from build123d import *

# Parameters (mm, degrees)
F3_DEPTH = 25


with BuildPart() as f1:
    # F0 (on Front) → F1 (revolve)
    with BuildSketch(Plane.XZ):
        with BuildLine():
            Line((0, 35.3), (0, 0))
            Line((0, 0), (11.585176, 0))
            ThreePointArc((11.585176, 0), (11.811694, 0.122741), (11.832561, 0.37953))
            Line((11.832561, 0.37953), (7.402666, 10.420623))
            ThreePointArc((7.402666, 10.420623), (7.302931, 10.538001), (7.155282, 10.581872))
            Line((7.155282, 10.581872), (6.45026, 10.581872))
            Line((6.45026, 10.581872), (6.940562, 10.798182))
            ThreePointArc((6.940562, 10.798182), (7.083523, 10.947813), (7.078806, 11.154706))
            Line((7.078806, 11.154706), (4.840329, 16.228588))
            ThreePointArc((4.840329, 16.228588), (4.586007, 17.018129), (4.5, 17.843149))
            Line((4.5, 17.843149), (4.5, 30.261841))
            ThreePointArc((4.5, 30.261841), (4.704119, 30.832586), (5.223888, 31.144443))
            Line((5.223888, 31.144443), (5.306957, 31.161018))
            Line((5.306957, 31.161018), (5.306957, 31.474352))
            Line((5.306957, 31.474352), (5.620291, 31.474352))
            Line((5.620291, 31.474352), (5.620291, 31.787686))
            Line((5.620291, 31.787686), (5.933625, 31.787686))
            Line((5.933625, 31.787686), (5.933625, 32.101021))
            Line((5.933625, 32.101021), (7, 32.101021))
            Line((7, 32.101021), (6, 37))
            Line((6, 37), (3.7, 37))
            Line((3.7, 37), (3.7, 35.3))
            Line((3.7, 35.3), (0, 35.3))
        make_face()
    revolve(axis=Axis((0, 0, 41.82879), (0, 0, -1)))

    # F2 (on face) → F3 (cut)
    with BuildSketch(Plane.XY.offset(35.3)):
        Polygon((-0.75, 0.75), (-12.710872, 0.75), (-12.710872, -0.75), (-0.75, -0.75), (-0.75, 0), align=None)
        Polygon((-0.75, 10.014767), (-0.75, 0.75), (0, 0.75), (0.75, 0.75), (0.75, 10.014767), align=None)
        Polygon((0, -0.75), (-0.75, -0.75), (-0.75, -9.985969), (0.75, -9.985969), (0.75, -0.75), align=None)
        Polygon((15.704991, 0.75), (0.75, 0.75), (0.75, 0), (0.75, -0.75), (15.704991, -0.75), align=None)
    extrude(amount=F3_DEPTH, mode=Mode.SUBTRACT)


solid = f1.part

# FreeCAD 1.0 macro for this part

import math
import FreeCAD as App
import Part
import Sketcher

V = App.Vector
Q = App.Units.Quantity


def add_polygon(sketch, points):
    """Adds a closed chain of lines whose ends are joined by coincident constraints."""
    first, n = sketch.GeometryCount, len(points)
    for a, b in zip(points, points[1:] + points[:1]):
        sketch.addGeometry(Part.LineSegment(App.Vector(*a, 0), App.Vector(*b, 0)), False)
    for i in range(n):
        sketch.addConstraint(Sketcher.Constraint("Coincident", first + i, 2, first + (i + 1) % n, 1))

doc = App.newDocument("Part")
body = doc.addObject("PartDesign::Body", "Body")

sketch1 = doc.addObject("Sketcher::SketchObject", "Sketch")
body.addObject(sketch1)
sketch1.AttachmentSupport = (doc.XZ_Plane, [""])
sketch1.MapMode = "FlatFace"
sketch1.addGeometry([
    Part.LineSegment(V(0, 35.3, 0), V(0, 0, 0)),
    Part.LineSegment(V(0, 0, 0), V(11.585176, 0, 0)),
    Part.ArcOfCircle(Part.Circle(V(11.585175, 0.270391, 0), V(0, 0, 1), 0.270391), math.radians(-89.999883), math.radians(23.805709)),
    Part.LineSegment(V(11.832561, 0.37953, 0), V(7.402666, 10.420623, 0)),
    Part.ArcOfCircle(Part.Circle(V(7.155284, 10.311486, 0), V(0, 0, 1), 0.270386), math.radians(23.805554), math.radians(90.000492)),
    Part.LineSegment(V(7.155282, 10.581872, 0), V(6.45026, 10.581872, 0)),
    Part.LineSegment(V(6.45026, 10.581872, 0), V(6.940562, 10.798182, 0)),
    Part.ArcOfCircle(Part.Circle(V(6.831423, 11.045566, 0), V(0, 0, 1), 0.270389), math.radians(-66.194227), math.radians(23.806114)),
    Part.LineSegment(V(7.078806, 11.154706, 0), V(4.840329, 16.228588, 0)),
    Part.ArcOfCircle(Part.Circle(V(8.500002, 17.84315, 0), V(0, 0, 1), 4.000002), math.radians(-179.99999), math.radians(-156.194055)),
    Part.LineSegment(V(4.5, 17.843149, 0), V(4.5, 30.261841, 0)),
    Part.ArcOfCircle(Part.Circle(V(5.400002, 30.261841, 0), V(0, 0, 1), 0.900002), math.radians(101.284539), math.radians(179.999974)),
    Part.LineSegment(V(5.223888, 31.144443, 0), V(5.306957, 31.161018, 0)),
    Part.LineSegment(V(5.306957, 31.161018, 0), V(5.306957, 31.474352, 0)),
    Part.LineSegment(V(5.306957, 31.474352, 0), V(5.620291, 31.474352, 0)),
    Part.LineSegment(V(5.620291, 31.474352, 0), V(5.620291, 31.787686, 0)),
    Part.LineSegment(V(5.620291, 31.787686, 0), V(5.933625, 31.787686, 0)),
    Part.LineSegment(V(5.933625, 31.787686, 0), V(5.933625, 32.101021, 0)),
    Part.LineSegment(V(5.933625, 32.101021, 0), V(7, 32.101021, 0)),
    Part.LineSegment(V(7, 32.101021, 0), V(6, 37, 0)),
    Part.LineSegment(V(6, 37, 0), V(3.7, 37, 0)),
    Part.LineSegment(V(3.7, 37, 0), V(3.7, 35.3, 0)),
    Part.LineSegment(V(3.7, 35.3, 0), V(0, 35.3, 0)),
], False)
sketch1.addConstraint([
    Sketcher.Constraint("Coincident", 0, 2, 1, 1),
    Sketcher.Constraint("Coincident", 1, 2, 2, 1),
    Sketcher.Constraint("Coincident", 2, 2, 3, 1),
    Sketcher.Constraint("Coincident", 3, 2, 4, 1),
    Sketcher.Constraint("Coincident", 4, 2, 5, 1),
    Sketcher.Constraint("Coincident", 5, 2, 6, 1),
    Sketcher.Constraint("Coincident", 6, 2, 7, 1),
    Sketcher.Constraint("Coincident", 7, 2, 8, 1),
    Sketcher.Constraint("Tangent", 8, 2, 9, 2),
    Sketcher.Constraint("Tangent", 9, 1, 10, 1),
    Sketcher.Constraint("Tangent", 10, 2, 11, 2),
    Sketcher.Constraint("Coincident", 11, 1, 12, 1),
    Sketcher.Constraint("Coincident", 12, 2, 13, 1),
    Sketcher.Constraint("Coincident", 13, 2, 14, 1),
    Sketcher.Constraint("Coincident", 14, 2, 15, 1),
    Sketcher.Constraint("Coincident", 15, 2, 16, 1),
    Sketcher.Constraint("Coincident", 16, 2, 17, 1),
    Sketcher.Constraint("Coincident", 17, 2, 18, 1),
    Sketcher.Constraint("Coincident", 18, 2, 19, 1),
    Sketcher.Constraint("Coincident", 19, 2, 20, 1),
    Sketcher.Constraint("Coincident", 20, 2, 21, 1),
    Sketcher.Constraint("Coincident", 21, 2, 22, 1),
    Sketcher.Constraint("Coincident", 22, 2, 0, 1),
    Sketcher.Constraint("Vertical", 0),
    Sketcher.Constraint("Horizontal", 1),
    Sketcher.Constraint("Horizontal", 5),
    Sketcher.Constraint("Vertical", 10),
    Sketcher.Constraint("Vertical", 13),
    Sketcher.Constraint("Horizontal", 14),
    Sketcher.Constraint("Vertical", 15),
    Sketcher.Constraint("Horizontal", 16),
    Sketcher.Constraint("Vertical", 17),
    Sketcher.Constraint("Horizontal", 18),
    Sketcher.Constraint("Horizontal", 20),
    Sketcher.Constraint("Vertical", 21),
    Sketcher.Constraint("Horizontal", 22),
    Sketcher.Constraint("Coincident", 0, 2, -1, 1),
    Sketcher.Constraint("Perpendicular", 3, 6),
    Sketcher.Constraint("Perpendicular", 6, 8),
    Sketcher.Constraint("Vertical", 2, 3, 1, 2),
    Sketcher.Constraint("Equal", 14, 16),
    Sketcher.Constraint("Equal", 16, 13),
    Sketcher.Constraint("Equal", 13, 15),
    Sketcher.Constraint("Equal", 15, 17),
    Sketcher.Constraint("Radius", 9, Q("4.000002 mm")),
    Sketcher.Constraint("Radius", 11, Q("0.900002 mm")),
    Sketcher.Constraint("Distance", 19, Q("5 mm")),
    Sketcher.Constraint("DistanceX", 20, 2, 20, 1, Q("2.3 mm")),
    Sketcher.Constraint("DistanceX", 22, 2, 22, 1, Q("3.7 mm")),
    Sketcher.Constraint("DistanceY", 0, 2, 0, 1, Q("35.3 mm")),
    Sketcher.Constraint("DistanceY", 21, 2, 21, 1, Q("1.7 mm")),
    Sketcher.Constraint("DistanceX", -1, 1, 18, 2, Q("7 mm")),
    Sketcher.Constraint("DistanceX", -1, 1, 9, 3, Q("8.500002 mm")),
    Sketcher.Constraint("Radius", 2, Q("0.270391 mm")),
    Sketcher.Constraint("Radius", 7, Q("0.270389 mm")),
    Sketcher.Constraint("Radius", 4, Q("0.270386 mm")),
    Sketcher.Constraint("DistanceX", 5, 2, 5, 1, Q("0.705022 mm")),
    Sketcher.Constraint("DistanceX", 5, 2, 6, 2, Q("0.490302 mm")),
    Sketcher.Constraint("DistanceY", 10, 2, 11, 1, Q("0.882602 mm")),
    Sketcher.Constraint("Distance", 3, Q("10.974858 mm")),
    Sketcher.Constraint("DistanceX", 1, 1, 1, 2, Q("11.585176 mm")),
    Sketcher.Constraint("DistanceX", 14, 1, 14, 2, Q("0.313334 mm")),
    Sketcher.Constraint("DistanceX", 18, 1, 18, 2, Q("1.066375 mm")),
    Sketcher.Constraint("DistanceY", 10, 1, 10, 2, Q("12.418692 mm")),
    Sketcher.Constraint("DistanceY", -1, 1, 9, 3, Q("17.84315 mm")),
    Sketcher.Constraint("DistanceX", -1, 1, 2, 2, Q("11.832561 mm")),
    Sketcher.Constraint("DistanceX", -1, 1, 4, 2, Q("7.155282 mm")),
    Sketcher.Constraint("DistanceY", -1, 1, 4, 2, Q("10.581872 mm")),
    Sketcher.Constraint("DistanceX", -1, 1, 8, 2, Q("4.840329 mm")),
    Sketcher.Constraint("DistanceY", 7, 3, 7, 2, Q("0.10914 mm")),
])
revolution = doc.addObject("PartDesign::Revolution", "Revolution")
body.addObject(revolution)
revolution.Profile = sketch1
revolution.ReferenceAxis = (sketch1, ["V_Axis"])
revolution.Angle = 360

sketch2 = doc.addObject("Sketcher::SketchObject", "Sketch001")
body.addObject(sketch2)
sketch2.AttachmentSupport = (doc.XY_Plane, [""])
sketch2.MapMode = "FlatFace"
sketch2.AttachmentOffset = App.Placement(V(0, 0, 35.3), App.Rotation())
add_polygon(sketch2, [(-0.75, 0.75), (-12.710872, 0.75), (-12.710872, -0.75), (-0.75, -0.75)])
add_polygon(sketch2, [(-0.75, 10.014767), (-0.75, 0.75), (0.75, 0.75), (0.75, 10.014767)])
add_polygon(sketch2, [(-0.75, -0.75), (-0.75, -9.985969), (0.75, -9.985969), (0.75, -0.75)])
add_polygon(sketch2, [(15.704991, 0.75), (0.75, 0.75), (0.75, -0.75), (15.704991, -0.75)])
sketch2.addConstraint([
    Sketcher.Constraint("Horizontal", 0),
    Sketcher.Constraint("Vertical", 1),
    Sketcher.Constraint("Horizontal", 2),
    Sketcher.Constraint("Vertical", 3),
    Sketcher.Constraint("Vertical", 4),
    Sketcher.Constraint("Horizontal", 5),
    Sketcher.Constraint("Vertical", 6),
    Sketcher.Constraint("Horizontal", 7),
    Sketcher.Constraint("Vertical", 8),
    Sketcher.Constraint("Horizontal", 9),
    Sketcher.Constraint("Vertical", 10),
    Sketcher.Constraint("Horizontal", 11),
    Sketcher.Constraint("Horizontal", 12),
    Sketcher.Constraint("Vertical", 13),
    Sketcher.Constraint("Horizontal", 14),
    Sketcher.Constraint("Vertical", 15),
    Sketcher.Constraint("Coincident", 4, 2, 3, 2),
    Sketcher.Constraint("Coincident", 11, 2, 2, 2),
    Sketcher.Constraint("Coincident", 12, 2, 5, 2),
    Sketcher.Constraint("Coincident", 13, 2, 10, 2),
    Sketcher.Constraint("Symmetric", 2, 2, 5, 2, -1, 1),
    Sketcher.Constraint("Equal", 11, 1),
    Sketcher.Constraint("DistanceX", 5, 1, 5, 2, Q("1.5 mm")),
    Sketcher.Constraint("DistanceX", 12, 2, 12, 1, Q("14.954991 mm")),
    Sketcher.Constraint("DistanceY", 8, 2, 8, 1, Q("9.235969 mm")),
    Sketcher.Constraint("DistanceX", 0, 2, 0, 1, Q("11.960872 mm")),
    Sketcher.Constraint("DistanceY", 4, 2, 4, 1, Q("9.264767 mm")),
])
pocket1 = doc.addObject("PartDesign::Pocket", "Pocket")
body.addObject(pocket1)
pocket1.Profile = sketch2
pocket1.Length = 25
pocket1.Reversed = True

doc.recompute()
